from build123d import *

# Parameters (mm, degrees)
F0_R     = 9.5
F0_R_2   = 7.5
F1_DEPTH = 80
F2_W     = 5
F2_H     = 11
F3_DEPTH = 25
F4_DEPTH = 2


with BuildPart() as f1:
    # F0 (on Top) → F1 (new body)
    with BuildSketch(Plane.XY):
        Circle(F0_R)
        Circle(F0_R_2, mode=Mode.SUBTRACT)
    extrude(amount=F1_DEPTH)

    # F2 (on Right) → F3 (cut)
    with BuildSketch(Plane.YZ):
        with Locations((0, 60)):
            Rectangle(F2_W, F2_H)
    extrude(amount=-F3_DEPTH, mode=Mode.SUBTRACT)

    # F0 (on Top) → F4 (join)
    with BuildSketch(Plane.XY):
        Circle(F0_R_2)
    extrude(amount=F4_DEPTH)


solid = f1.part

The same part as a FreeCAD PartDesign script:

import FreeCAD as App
import Part
import Sketcher
from FreeCAD import Vector
Q = App.Units.Quantity

doc = App.newDocument("Part")
body = doc.addObject("PartDesign::Body", "Body")

# Sketch on XY plane
sketch1 = body.newObject("Sketcher::SketchObject", "Sketch")
sketch1.AttachmentSupport = (doc.getObject("XY_Plane"), [""])
sketch1.MapMode = "FlatFace"
sketch1.addGeometry(Part.Circle(Vector(0, 0, 0), Vector(0, 0, 1), 10), False)
sketch1.addGeometry(Part.Circle(Vector(0, 0, 0), Vector(0, 0, 1), 8), False)
sketch1.addConstraint(Sketcher.Constraint("Coincident", 0, 3, -1, 1))
sketch1.addConstraint(Sketcher.Constraint("Coincident", 1, 3, -1, 1))
sketch1.addConstraint(Sketcher.Constraint("Diameter", 0, Q("19 mm")))
sketch1.addConstraint(Sketcher.Constraint("Diameter", 1, Q("15 mm")))
pad1 = body.newObject("PartDesign::Pad", "Pad")
pad1.Profile = sketch1
pad1.Length = 80

# Sketch on YZ plane
sketch2 = body.newObject("Sketcher::SketchObject", "Sketch001")
sketch2.AttachmentSupport = (doc.getObject("YZ_Plane"), [""])
sketch2.MapMode = "FlatFace"
sketch2.addGeometry(Part.LineSegment(Vector(-2, 66, 0), Vector(-2, 54, 0)), False)
sketch2.addGeometry(Part.LineSegment(Vector(-2, 54, 0), Vector(2, 54, 0)), False)
sketch2.addGeometry(Part.LineSegment(Vector(2, 54, 0), Vector(2, 66, 0)), False)
sketch2.addGeometry(Part.LineSegment(Vector(2, 66, 0), Vector(-2, 66, 0)), False)
sketch2.addConstraint(Sketcher.Constraint("Coincident", 0, 2, 1, 1))
sketch2.addConstraint(Sketcher.Constraint("Coincident", 1, 2, 2, 1))
sketch2.addConstraint(Sketcher.Constraint("Coincident", 2, 2, 3, 1))
sketch2.addConstraint(Sketcher.Constraint("Coincident", 3, 2, 0, 1))
sketch2.addConstraint(Sketcher.Constraint("Vertical", 0))
sketch2.addConstraint(Sketcher.Constraint("Horizontal", 1))
sketch2.addConstraint(Sketcher.Constraint("Vertical", 2))
sketch2.addConstraint(Sketcher.Constraint("Horizontal", 3))
sketch2.addConstraint(Sketcher.Constraint("DistanceX", 1, 1, 1, 2, Q("5 mm")))
sketch2.addConstraint(Sketcher.Constraint("DistanceY", 0, 2, 0, 1, Q("11 mm")))
sketch2.addConstraint(Sketcher.Constraint("DistanceX", 0, 2, -1, 1, Q("2.5 mm")))
sketch2.addConstraint(Sketcher.Constraint("DistanceY", -1, 1, 0, 2, Q("54.5 mm")))
pocket1 = body.newObject("PartDesign::Pocket", "Pocket")
pocket1.Profile = sketch2
pocket1.Length = 25

# Sketch on XY plane
sketch3 = body.newObject("Sketcher::SketchObject", "Sketch002")
sketch3.AttachmentSupport = (doc.getObject("XY_Plane"), [""])
sketch3.MapMode = "FlatFace"
sketch3.addGeometry(Part.Circle(Vector(0, 0, 0), Vector(0, 0, 1), 8), False)
sketch3.addConstraint(Sketcher.Constraint("Coincident", 0, 3, -1, 1))
sketch3.addConstraint(Sketcher.Constraint("Diameter", 0, Q("15 mm")))
pad2 = body.newObject("PartDesign::Pad", "Pad001")
pad2.Profile = sketch3
pad2.Length = 2

doc.recompute()
